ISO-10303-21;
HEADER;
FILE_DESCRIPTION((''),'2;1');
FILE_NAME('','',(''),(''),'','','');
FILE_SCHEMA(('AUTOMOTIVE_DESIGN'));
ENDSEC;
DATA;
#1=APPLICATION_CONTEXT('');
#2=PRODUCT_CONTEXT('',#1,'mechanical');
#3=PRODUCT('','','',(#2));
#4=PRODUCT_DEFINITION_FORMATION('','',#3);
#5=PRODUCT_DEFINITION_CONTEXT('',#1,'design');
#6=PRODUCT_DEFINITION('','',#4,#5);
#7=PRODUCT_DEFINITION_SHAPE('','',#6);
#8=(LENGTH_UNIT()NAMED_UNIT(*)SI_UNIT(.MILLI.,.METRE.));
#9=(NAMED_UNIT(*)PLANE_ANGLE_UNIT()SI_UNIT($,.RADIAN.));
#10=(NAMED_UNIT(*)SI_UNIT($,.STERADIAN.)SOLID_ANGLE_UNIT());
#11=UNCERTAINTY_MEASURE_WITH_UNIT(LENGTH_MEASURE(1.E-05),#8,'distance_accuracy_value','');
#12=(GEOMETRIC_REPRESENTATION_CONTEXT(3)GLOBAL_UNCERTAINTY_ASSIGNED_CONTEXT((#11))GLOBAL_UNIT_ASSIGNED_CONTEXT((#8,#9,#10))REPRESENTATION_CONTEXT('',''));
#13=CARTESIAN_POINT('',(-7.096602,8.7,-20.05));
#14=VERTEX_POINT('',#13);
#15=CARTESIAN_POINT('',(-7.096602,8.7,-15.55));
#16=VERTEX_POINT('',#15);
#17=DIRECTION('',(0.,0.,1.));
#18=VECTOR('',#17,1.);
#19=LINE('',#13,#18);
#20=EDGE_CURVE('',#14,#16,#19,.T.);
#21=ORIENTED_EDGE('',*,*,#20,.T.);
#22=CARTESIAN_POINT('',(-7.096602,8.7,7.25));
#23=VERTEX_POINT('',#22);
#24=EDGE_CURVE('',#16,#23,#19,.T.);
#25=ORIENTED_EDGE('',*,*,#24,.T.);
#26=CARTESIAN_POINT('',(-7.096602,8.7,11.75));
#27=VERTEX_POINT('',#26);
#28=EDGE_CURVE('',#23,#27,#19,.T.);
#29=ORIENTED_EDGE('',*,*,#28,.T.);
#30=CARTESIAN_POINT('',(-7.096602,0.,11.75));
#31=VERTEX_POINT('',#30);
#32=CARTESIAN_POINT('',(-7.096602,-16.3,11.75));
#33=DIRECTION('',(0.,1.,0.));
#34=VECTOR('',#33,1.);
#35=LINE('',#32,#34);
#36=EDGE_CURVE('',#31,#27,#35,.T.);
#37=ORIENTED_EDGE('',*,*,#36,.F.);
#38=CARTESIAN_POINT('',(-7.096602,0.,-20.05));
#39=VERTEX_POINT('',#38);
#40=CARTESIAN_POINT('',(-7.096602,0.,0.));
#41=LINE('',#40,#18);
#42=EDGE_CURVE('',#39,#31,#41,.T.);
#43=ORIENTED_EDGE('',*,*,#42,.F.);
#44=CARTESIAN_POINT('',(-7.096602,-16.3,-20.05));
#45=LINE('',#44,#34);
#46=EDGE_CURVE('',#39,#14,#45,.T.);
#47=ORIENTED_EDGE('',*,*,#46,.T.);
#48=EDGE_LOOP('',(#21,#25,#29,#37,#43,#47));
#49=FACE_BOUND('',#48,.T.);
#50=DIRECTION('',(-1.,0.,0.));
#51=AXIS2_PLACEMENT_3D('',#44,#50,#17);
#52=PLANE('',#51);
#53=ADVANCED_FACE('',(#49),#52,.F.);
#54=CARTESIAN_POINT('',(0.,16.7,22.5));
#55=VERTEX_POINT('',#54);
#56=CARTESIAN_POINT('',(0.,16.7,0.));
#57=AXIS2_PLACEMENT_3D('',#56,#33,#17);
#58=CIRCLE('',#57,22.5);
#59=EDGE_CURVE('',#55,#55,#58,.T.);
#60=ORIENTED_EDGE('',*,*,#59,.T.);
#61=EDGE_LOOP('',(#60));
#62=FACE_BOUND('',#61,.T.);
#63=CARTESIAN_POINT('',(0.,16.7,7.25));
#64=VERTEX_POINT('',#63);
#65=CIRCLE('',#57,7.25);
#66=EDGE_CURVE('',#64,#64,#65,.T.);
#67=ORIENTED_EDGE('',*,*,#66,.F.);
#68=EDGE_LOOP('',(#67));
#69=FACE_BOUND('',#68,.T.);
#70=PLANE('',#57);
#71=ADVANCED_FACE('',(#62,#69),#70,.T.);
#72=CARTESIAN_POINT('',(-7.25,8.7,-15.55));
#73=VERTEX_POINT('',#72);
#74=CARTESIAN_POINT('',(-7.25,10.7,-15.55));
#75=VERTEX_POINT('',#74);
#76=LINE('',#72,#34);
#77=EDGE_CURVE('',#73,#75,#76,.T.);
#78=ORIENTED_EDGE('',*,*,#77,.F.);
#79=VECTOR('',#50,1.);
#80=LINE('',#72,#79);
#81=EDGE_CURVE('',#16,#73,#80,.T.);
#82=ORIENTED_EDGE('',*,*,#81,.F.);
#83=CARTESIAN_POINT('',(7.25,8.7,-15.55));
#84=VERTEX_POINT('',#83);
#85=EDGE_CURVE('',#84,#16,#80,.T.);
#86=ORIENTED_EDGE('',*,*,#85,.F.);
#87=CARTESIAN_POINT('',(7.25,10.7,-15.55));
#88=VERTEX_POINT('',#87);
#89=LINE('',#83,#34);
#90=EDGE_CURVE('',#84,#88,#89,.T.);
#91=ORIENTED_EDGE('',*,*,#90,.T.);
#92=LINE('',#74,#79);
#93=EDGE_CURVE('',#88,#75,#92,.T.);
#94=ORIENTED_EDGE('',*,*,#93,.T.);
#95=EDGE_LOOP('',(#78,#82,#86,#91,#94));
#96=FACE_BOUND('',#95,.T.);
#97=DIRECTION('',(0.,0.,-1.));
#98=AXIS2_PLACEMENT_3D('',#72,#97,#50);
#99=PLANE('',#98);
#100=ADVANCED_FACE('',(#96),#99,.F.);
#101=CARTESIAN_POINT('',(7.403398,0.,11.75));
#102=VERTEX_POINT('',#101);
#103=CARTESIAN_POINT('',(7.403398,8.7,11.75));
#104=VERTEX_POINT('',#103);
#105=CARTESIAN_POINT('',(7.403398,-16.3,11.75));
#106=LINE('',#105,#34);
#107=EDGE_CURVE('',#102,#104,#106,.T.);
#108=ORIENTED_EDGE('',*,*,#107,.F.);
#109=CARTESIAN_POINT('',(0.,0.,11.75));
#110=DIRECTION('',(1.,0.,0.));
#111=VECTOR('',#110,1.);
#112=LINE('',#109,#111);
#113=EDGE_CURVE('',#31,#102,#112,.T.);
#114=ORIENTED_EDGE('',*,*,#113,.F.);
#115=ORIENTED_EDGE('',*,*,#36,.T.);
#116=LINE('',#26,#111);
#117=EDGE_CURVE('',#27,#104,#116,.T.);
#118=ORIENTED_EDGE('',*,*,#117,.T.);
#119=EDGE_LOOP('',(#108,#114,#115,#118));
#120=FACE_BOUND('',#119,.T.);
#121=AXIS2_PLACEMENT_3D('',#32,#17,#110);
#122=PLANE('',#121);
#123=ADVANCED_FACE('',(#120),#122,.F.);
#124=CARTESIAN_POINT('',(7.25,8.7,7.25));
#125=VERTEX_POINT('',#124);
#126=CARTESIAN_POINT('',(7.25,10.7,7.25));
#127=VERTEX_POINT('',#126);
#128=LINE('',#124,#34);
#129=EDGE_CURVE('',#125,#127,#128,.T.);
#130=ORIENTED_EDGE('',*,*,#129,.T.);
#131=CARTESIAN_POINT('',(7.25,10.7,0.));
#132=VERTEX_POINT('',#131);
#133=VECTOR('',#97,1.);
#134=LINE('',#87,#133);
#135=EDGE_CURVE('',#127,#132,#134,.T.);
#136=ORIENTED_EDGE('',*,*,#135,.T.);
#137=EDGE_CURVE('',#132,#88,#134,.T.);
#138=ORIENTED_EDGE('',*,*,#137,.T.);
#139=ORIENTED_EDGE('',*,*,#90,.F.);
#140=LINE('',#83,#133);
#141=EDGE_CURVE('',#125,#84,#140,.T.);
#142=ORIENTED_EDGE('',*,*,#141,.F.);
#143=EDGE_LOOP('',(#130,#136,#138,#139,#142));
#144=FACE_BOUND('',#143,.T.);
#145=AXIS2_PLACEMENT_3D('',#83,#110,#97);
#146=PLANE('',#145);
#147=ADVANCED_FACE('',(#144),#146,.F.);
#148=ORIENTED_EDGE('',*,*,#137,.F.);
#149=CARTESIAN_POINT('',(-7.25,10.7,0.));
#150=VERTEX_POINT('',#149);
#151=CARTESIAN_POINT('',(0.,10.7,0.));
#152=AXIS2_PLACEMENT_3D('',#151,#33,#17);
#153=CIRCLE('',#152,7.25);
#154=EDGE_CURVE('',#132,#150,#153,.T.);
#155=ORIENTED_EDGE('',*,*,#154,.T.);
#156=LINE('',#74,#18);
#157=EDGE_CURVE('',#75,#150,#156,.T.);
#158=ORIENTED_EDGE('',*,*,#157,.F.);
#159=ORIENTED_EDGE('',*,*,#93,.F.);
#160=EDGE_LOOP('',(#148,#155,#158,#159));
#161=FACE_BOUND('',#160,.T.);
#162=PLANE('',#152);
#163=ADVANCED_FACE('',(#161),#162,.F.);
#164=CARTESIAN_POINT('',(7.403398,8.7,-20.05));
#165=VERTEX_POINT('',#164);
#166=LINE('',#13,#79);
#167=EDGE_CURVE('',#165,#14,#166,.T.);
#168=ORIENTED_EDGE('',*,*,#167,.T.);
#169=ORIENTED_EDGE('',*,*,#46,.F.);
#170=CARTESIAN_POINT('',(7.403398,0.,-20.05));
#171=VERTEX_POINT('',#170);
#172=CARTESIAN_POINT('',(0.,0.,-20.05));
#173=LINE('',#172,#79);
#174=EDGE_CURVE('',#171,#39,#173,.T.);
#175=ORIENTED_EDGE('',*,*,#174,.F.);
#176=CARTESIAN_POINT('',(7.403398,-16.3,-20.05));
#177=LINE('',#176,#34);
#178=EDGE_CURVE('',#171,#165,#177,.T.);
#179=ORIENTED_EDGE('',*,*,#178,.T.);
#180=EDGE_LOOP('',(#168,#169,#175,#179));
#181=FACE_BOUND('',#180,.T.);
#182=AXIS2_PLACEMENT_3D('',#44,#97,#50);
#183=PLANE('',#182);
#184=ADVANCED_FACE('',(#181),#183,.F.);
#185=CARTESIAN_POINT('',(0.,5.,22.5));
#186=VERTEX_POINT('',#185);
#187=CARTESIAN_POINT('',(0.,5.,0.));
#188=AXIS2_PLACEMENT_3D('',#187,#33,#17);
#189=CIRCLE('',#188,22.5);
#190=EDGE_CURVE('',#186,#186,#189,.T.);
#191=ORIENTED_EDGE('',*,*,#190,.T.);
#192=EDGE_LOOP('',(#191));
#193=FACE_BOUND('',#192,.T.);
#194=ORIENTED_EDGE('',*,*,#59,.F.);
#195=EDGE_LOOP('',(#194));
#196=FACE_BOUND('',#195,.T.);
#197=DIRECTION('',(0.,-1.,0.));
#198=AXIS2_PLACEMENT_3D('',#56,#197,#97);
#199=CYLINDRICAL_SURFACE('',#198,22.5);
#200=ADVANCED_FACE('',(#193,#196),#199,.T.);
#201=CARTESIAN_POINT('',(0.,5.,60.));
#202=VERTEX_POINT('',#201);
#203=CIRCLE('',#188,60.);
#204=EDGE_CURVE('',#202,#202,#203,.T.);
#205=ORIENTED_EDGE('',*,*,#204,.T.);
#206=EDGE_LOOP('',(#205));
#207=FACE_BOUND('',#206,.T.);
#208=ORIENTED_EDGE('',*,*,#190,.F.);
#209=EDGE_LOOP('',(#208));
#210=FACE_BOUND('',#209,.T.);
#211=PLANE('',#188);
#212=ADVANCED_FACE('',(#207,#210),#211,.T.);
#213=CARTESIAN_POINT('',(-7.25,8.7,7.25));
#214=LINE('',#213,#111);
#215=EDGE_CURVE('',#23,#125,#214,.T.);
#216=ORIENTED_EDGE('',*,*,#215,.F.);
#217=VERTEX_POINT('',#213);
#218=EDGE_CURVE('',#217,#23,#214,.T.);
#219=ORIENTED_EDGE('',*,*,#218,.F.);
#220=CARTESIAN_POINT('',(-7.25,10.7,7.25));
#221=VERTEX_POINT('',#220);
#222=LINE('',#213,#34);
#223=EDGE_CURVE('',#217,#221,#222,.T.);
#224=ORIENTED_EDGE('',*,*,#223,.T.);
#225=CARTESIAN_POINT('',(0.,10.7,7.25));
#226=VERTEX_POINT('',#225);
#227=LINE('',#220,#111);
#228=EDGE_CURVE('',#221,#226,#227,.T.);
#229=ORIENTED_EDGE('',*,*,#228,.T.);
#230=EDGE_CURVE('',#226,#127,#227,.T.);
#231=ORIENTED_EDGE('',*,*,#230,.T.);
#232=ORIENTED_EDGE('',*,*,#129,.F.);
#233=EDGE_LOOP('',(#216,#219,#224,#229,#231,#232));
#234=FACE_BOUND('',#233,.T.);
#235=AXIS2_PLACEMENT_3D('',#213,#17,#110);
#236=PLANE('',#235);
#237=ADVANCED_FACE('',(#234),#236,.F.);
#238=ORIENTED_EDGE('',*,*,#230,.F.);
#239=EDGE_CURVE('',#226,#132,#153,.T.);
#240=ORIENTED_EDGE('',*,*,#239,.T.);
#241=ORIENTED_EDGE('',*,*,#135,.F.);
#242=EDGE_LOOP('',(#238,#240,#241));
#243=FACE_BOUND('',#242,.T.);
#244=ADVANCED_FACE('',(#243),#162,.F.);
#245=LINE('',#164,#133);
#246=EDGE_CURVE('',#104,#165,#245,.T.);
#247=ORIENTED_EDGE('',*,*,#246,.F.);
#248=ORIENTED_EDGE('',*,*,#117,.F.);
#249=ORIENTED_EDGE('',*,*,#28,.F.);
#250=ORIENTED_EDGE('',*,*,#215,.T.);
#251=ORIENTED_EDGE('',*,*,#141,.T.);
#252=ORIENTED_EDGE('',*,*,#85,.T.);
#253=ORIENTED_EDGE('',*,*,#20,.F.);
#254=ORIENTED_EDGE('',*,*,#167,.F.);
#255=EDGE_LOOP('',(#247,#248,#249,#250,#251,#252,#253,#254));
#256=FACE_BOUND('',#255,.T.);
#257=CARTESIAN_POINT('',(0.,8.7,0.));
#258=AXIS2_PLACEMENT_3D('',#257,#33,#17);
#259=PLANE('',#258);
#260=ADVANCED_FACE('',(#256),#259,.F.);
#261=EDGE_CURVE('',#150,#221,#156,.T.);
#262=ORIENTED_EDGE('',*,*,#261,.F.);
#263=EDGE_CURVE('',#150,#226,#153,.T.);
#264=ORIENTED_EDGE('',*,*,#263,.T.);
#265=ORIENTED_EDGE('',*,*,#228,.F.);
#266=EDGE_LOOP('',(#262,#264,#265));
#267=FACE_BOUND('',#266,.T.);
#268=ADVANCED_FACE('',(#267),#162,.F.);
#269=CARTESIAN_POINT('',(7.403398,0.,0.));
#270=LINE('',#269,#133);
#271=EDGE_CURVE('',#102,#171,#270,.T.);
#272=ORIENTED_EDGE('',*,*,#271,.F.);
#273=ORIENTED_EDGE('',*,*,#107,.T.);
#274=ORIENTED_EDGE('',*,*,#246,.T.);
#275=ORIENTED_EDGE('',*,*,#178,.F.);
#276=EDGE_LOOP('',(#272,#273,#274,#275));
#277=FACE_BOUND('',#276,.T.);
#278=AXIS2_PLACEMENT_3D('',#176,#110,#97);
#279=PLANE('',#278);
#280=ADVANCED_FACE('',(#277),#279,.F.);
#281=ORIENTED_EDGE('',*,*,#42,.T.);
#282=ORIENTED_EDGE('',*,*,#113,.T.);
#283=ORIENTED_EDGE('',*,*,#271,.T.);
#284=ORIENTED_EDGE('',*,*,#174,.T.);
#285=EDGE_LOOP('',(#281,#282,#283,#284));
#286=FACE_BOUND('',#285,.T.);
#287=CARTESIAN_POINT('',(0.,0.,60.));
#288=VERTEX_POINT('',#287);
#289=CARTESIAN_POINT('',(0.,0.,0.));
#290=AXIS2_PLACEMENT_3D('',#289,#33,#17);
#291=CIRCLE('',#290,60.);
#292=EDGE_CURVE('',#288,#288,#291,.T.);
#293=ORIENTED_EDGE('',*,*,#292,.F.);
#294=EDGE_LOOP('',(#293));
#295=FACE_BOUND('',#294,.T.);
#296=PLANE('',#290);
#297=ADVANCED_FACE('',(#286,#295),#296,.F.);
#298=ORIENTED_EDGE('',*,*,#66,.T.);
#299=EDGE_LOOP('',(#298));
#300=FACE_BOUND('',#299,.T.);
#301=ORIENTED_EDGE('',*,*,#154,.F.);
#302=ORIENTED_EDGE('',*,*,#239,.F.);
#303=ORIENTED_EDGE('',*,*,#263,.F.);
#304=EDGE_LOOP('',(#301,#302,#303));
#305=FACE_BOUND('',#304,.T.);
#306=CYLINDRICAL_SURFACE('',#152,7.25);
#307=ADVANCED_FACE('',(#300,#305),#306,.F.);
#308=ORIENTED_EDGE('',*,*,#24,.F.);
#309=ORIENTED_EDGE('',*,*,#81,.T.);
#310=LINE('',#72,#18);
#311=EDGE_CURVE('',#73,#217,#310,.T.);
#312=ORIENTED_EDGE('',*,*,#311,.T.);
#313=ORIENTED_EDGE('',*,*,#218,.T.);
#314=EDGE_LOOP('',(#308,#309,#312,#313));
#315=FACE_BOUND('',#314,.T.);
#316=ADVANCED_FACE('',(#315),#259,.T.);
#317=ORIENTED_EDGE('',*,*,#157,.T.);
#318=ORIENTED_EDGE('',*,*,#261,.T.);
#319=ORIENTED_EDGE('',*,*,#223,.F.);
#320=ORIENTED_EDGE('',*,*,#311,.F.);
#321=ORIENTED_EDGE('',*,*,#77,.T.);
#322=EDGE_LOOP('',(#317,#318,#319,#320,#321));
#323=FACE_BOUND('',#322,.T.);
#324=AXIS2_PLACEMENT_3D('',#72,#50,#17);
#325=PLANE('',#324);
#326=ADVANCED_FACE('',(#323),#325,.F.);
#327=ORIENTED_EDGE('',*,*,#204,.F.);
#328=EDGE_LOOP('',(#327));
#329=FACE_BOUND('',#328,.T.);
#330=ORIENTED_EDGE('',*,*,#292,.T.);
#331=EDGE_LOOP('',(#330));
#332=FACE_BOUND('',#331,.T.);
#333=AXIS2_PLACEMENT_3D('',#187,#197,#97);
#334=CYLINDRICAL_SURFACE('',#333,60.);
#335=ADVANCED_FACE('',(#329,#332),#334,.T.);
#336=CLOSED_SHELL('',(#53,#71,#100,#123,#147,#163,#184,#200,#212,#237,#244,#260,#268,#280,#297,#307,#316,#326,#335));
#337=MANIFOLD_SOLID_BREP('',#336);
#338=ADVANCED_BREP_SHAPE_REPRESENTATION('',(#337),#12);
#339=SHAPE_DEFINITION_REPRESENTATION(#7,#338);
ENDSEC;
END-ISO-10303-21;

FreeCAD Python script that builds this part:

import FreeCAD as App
import Part
import Sketcher


def add_polygon(sketch, points):
    """Adds a closed chain of lines whose ends are joined by coincident constraints."""
    first, n = sketch.GeometryCount, len(points)
    for a, b in zip(points, points[1:] + points[:1]):
        sketch.addGeometry(Part.LineSegment(App.Vector(*a, 0), App.Vector(*b, 0)), False)
    for i in range(n):
        sketch.addConstraint(Sketcher.Constraint("Coincident", first + i, 2, first + (i + 1) % n, 1))

doc = App.newDocument("Part")
body = doc.addObject("PartDesign::Body", "Body")

sketch1 = doc.addObject("Sketcher::SketchObject", "Sketch")
body.addObject(sketch1)
sketch1.AttachmentSupport = (doc.XZ_Plane, [""])
sketch1.MapMode = "FlatFace"
sketch1.addGeometry(Part.Circle(App.Vector(0, 0, 0), App.Vector(0, 0, 1), 60), False)
sketch1.addConstraint(Sketcher.Constraint("Coincident", 0, 3, -1, 1))
sketch1.addConstraint(Sketcher.Constraint("Diameter", 0, 120.0))
pad1 = doc.addObject("PartDesign::Pad", "Pad")
body.addObject(pad1)
pad1.Profile = sketch1
pad1.Length = 5
pad1.Reversed = True

sketch2 = doc.addObject("Sketcher::SketchObject", "Sketch001")
body.addObject(sketch2)
sketch2.AttachmentSupport = (doc.XZ_Plane, [""])
sketch2.MapMode = "FlatFace"
sketch2.AttachmentOffset = App.Placement(App.Vector(0, 0, -5), App.Rotation())
sketch2.addGeometry(Part.Circle(App.Vector(0, 0, 0), App.Vector(0, 0, 1), 22.5), False)
sketch2.addConstraint(Sketcher.Constraint("Coincident", 0, 3, -1, 1))
sketch2.addConstraint(Sketcher.Constraint("Diameter", 0, 45.0))
pad2 = doc.addObject("PartDesign::Pad", "Pad001")
body.addObject(pad2)
pad2.Profile = sketch2
pad2.Length = 11.7
pad2.Reversed = True

sketch3 = doc.addObject("Sketcher::SketchObject", "Sketch002")
body.addObject(sketch3)
sketch3.AttachmentSupport = (doc.XZ_Plane, [""])
sketch3.MapMode = "FlatFace"
sketch3.AttachmentOffset = App.Placement(App.Vector(0, 0, -16.7), App.Rotation())
sketch3.addGeometry(Part.Circle(App.Vector(0, 0, 0), App.Vector(0, 0, 1), 7.25), False)
sketch3.addConstraint(Sketcher.Constraint("Coincident", 0, 3, -1, 1))
sketch3.addConstraint(Sketcher.Constraint("Diameter", 0, 14.5))
pocket1 = doc.addObject("PartDesign::Pocket", "Pocket")
body.addObject(pocket1)
pocket1.Profile = sketch3
pocket1.Length = 6
pocket1.Reversed = True

sketch4 = doc.addObject("Sketcher::SketchObject", "Sketch003")
body.addObject(sketch4)
sketch4.AttachmentSupport = (doc.XZ_Plane, [""])
sketch4.MapMode = "FlatFace"
sketch4.AttachmentOffset = App.Placement(App.Vector(0, 0, -10.7), App.Rotation())
add_polygon(sketch4, [(-7.25, -15.55), (-7.25, 7.25), (7.25, 7.25), (7.25, -15.55)])
sketch4.addConstraint(Sketcher.Constraint("Vertical", 0))
sketch4.addConstraint(Sketcher.Constraint("Horizontal", 1))
sketch4.addConstraint(Sketcher.Constraint("Vertical", 2))
sketch4.addConstraint(Sketcher.Constraint("Horizontal", 3))
sketch4.addConstraint(Sketcher.Constraint("DistanceX", 1, 1, 1, 2, 14.5))
sketch4.addConstraint(Sketcher.Constraint("DistanceY", 0, 1, 0, 2, 22.8))
sketch4.addConstraint(Sketcher.Constraint("DistanceX", 0, 2, -1, 1, 7.25))
sketch4.addConstraint(Sketcher.Constraint("DistanceY", -1, 1, 0, 2, 7.25))
pocket2 = doc.addObject("PartDesign::Pocket", "Pocket001")
body.addObject(pocket2)
pocket2.Profile = sketch4
pocket2.Length = 2
pocket2.Reversed = True

sketch5 = doc.addObject("Sketcher::SketchObject", "Sketch004")
body.addObject(sketch5)
sketch5.AttachmentSupport = (doc.XZ_Plane, [""])
sketch5.MapMode = "FlatFace"
sketch5.AttachmentOffset = App.Placement(App.Vector(0, 0, -8.7), App.Rotation())
add_polygon(sketch5, [(-7.096602, -20.05), (-7.096602, 11.75), (7.403398, 11.75), (7.403398, -20.05)])
sketch5.addConstraint(Sketcher.Constraint("Vertical", 0))
sketch5.addConstraint(Sketcher.Constraint("Horizontal", 1))
sketch5.addConstraint(Sketcher.Constraint("Vertical", 2))
sketch5.addConstraint(Sketcher.Constraint("Horizontal", 3))
sketch5.addConstraint(Sketcher.Constraint("DistanceX", 1, 1, 1, 2, 14.5))
sketch5.addConstraint(Sketcher.Constraint("DistanceY", 0, 1, 0, 2, 31.8))
sketch5.addConstraint(Sketcher.Constraint("DistanceY", -1, 1, 0, 2, 11.75))
sketch5.addConstraint(Sketcher.Constraint("DistanceX", 0, 2, -1, 1, 7.096602))
pocket3 = doc.addObject("PartDesign::Pocket", "Pocket002")
body.addObject(pocket3)
pocket3.Profile = sketch5
pocket3.Length = 25
pocket3.Reversed = True

doc.recompute()
